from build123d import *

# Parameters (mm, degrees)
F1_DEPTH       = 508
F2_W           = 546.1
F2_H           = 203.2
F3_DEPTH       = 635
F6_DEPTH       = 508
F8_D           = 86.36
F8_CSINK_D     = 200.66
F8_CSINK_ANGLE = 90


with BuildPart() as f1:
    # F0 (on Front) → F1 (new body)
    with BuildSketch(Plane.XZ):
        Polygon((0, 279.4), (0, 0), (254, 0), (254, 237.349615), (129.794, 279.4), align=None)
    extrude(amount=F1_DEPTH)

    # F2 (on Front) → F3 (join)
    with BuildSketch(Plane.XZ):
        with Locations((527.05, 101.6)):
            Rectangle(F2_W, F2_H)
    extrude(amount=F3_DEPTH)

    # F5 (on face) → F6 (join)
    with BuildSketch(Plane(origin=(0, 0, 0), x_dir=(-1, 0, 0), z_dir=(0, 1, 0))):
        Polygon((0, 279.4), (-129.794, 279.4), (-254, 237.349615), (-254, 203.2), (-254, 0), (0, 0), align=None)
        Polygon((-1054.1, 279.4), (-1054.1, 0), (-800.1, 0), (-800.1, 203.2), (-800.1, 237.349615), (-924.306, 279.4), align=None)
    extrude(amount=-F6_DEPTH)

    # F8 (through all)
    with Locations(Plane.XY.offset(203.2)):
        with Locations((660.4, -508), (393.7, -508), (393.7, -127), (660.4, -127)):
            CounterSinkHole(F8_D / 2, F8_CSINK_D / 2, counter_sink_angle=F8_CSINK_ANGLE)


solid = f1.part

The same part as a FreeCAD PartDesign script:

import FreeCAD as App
import Part
import Sketcher
from FreeCAD import Vector
Q = App.Units.Quantity


def add_polygon(sketch, points):
    """Adds a closed chain of lines whose ends are joined by coincident constraints."""
    first, n = sketch.GeometryCount, len(points)
    for a, b in zip(points, points[1:] + points[:1]):
        sketch.addGeometry(Part.LineSegment(App.Vector(*a, 0), App.Vector(*b, 0)), False)
    for i in range(n):
        sketch.addConstraint(Sketcher.Constraint("Coincident", first + i, 2, first + (i + 1) % n, 1))

doc = App.newDocument("Part")
body = doc.addObject("PartDesign::Body", "Body")

# Sketch on XZ plane
sketch1 = body.newObject("Sketcher::SketchObject", "Sketch")
sketch1.AttachmentSupport = (doc.getObject("XZ_Plane"), [""])
sketch1.MapMode = "FlatFace"
add_polygon(sketch1, [(0, 279), (0, 0), (254, 0), (254, 237), (130, 279)])  # lines 0-4
sketch1.addConstraint([
    Sketcher.Constraint("Vertical", 0),
    Sketcher.Constraint("Horizontal", 1),
    Sketcher.Constraint("Vertical", 2),
    Sketcher.Constraint("Horizontal", 4),
    Sketcher.Constraint("Coincident", 0, 2, -1, 1),
    Sketcher.Constraint("DistanceX", 1, 1, 1, 2, Q("10 in")),
    Sketcher.Constraint("DistanceY", 0, 2, 0, 1, Q("11 in")),
    Sketcher.Constraint("DistanceX", 4, 2, 4, 1, Q("5.11 in")),
    Sketcher.Constraint("Distance", 3, 131.1311),
])
pad1 = body.newObject("PartDesign::Pad", "Pad")
pad1.Profile = sketch1
pad1.Length = Q("20 in")

# Sketch on XZ plane
sketch2 = body.newObject("Sketcher::SketchObject", "Sketch001")
sketch2.AttachmentSupport = (doc.getObject("XZ_Plane"), [""])
sketch2.MapMode = "FlatFace"
add_polygon(sketch2, [(254, 203), (254, 0), (800, 0), (800, 203)])  # lines 0-3
sketch2.addConstraint([
    Sketcher.Constraint("Vertical", 0),
    Sketcher.Constraint("Horizontal", 1),
    Sketcher.Constraint("Vertical", 2),
    Sketcher.Constraint("Horizontal", 3),
    Sketcher.Constraint("PointOnObject", 0, 2, -1),
    Sketcher.Constraint("DistanceY", 0, 2, 0, 1, Q("8 in")),
    Sketcher.Constraint("DistanceX", 1, 1, 1, 2, Q("21.5 in")),
    Sketcher.Constraint("DistanceX", -1, 1, 0, 2, Q("10 in")),
])
pad2 = body.newObject("PartDesign::Pad", "Pad001")
pad2.Profile = sketch2
pad2.Length = Q("25 in")

# Sketch on XZ plane
sketch3 = body.newObject("Sketcher::SketchObject", "Sketch002")
sketch3.AttachmentSupport = (doc.getObject("XZ_Plane"), [""])
sketch3.MapMode = "FlatFace"
add_polygon(sketch3, [(0, 279), (130, 279), (254, 237), (254, 0), (0, 0)])  # lines 0-4
add_polygon(sketch3, [(1054, 279), (1054, 0), (800, 0), (800, 237), (924, 279)])  # lines 5-9
sketch3.addConstraint([
    Sketcher.Constraint("Horizontal", 0),
    Sketcher.Constraint("Vertical", 2),
    Sketcher.Constraint("Horizontal", 3),
    Sketcher.Constraint("Vertical", 4),
    Sketcher.Constraint("Vertical", 5),
    Sketcher.Constraint("Horizontal", 6),
    Sketcher.Constraint("Vertical", 7),
    Sketcher.Constraint("Horizontal", 9),
    Sketcher.Constraint("Coincident", 3, 2, -1, 1),
    Sketcher.Constraint("PointOnObject", 5, 2, -1),
    Sketcher.Constraint("Horizontal", 1, 2, 7, 2),
    Sketcher.Constraint("Horizontal", 4, 2, 8, 2),
    Sketcher.Constraint("Equal", 3, 6),
    Sketcher.Constraint("Equal", 0, 9),
    Sketcher.Constraint("DistanceX", 3, 2, 3, 1, Q("10 in")),
    Sketcher.Constraint("DistanceY", 4, 1, 4, 2, Q("11 in")),
    Sketcher.Constraint("DistanceX", 0, 1, 0, 2, Q("5.11 in")),
    Sketcher.Constraint("DistanceX", -1, 1, 5, 2, Q("41.5 in")),
    Sketcher.Constraint("Distance", 1, 131.1311),
])
pad3 = body.newObject("PartDesign::Pad", "Pad002")
pad3.Profile = sketch3
pad3.Length = Q("20 in")

# Sketch on XY plane
sketch4 = body.newObject("Sketcher::SketchObject", "Sketch003")
sketch4.AttachmentSupport = (doc.getObject("XY_Plane"), [""])
sketch4.MapMode = "FlatFace"
sketch4.AttachmentOffset = App.Placement(Vector(0, 0, 8 * 25.4), App.Rotation())
sketch4.addGeometry([
    Part.Circle(Vector(660, -508, 0), Vector(0, 0, 1), 43),
    Part.Circle(Vector(394, -508, 0), Vector(0, 0, 1), 43),
    Part.Circle(Vector(394, -127, 0), Vector(0, 0, 1), 43),
    Part.Circle(Vector(660, -127, 0), Vector(0, 0, 1), 43),
], False)
sketch4.addConstraint([
    Sketcher.Constraint("Equal", 0, 1),
    Sketcher.Constraint("Equal", 1, 2),
    Sketcher.Constraint("Equal", 2, 3),
    Sketcher.Constraint("Horizontal", 0, 3, 1, 3),
    Sketcher.Constraint("Horizontal", 2, 3, 3, 3),
    Sketcher.Constraint("Vertical", 1, 3, 2, 3),
    Sketcher.Constraint("Vertical", 0, 3, 3, 3),
    Sketcher.Constraint("Diameter", 0, Q("3.4 in")),
    Sketcher.Constraint("DistanceX", -1, 1, 0, 3, Q("26 in")),
    Sketcher.Constraint("DistanceY", 0, 3, -1, 1, Q("20 in")),
    Sketcher.Constraint("DistanceY", 2, 3, -1, 1, Q("5 in")),
    Sketcher.Constraint("DistanceX", -1, 1, 1, 3, Q("15.5 in")),
])
doc.recompute()
hole = body.newObject("PartDesign::Hole", "Hole")
hole.Profile = sketch4
hole.ThreadType = "None"
hole.Diameter = Q("3.4 in")
hole.DepthType = "ThroughAll"
hole.HoleCutType = "Countersink"
hole.HoleCutDiameter = Q("7.9 in")
hole.HoleCutCountersinkAngle = 90

doc.recompute()
